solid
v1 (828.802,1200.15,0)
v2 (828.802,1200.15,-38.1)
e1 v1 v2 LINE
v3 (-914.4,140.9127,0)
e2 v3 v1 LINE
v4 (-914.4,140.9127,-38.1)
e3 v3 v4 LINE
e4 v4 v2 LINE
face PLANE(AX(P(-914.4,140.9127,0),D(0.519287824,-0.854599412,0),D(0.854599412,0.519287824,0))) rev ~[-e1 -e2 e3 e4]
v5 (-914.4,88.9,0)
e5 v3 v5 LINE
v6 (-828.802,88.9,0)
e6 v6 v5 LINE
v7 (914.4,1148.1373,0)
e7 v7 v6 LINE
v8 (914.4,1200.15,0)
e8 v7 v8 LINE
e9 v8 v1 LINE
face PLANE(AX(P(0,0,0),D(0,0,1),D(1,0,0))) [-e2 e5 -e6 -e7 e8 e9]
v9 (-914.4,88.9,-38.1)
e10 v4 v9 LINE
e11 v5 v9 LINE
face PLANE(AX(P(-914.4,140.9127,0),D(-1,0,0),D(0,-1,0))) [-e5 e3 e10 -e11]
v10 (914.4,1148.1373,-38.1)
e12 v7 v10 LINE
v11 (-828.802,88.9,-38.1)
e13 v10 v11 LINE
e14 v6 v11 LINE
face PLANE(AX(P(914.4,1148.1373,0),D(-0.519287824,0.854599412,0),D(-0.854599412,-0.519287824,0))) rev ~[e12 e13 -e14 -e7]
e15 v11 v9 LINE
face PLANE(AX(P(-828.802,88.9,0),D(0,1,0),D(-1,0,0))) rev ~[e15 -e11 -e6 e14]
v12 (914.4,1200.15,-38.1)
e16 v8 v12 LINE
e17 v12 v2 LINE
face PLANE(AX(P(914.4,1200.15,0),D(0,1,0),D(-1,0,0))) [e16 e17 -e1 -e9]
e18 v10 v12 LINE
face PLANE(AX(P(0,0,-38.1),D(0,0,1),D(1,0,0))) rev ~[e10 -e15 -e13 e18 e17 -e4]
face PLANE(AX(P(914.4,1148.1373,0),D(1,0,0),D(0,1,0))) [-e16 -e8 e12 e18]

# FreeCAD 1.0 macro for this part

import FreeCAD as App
import Part
import Sketcher
from FreeCAD import Vector
Q = App.Units.Quantity


def add_polygon(sketch, points):
    """Adds a closed chain of lines whose ends are joined by coincident constraints."""
    first, n = sketch.GeometryCount, len(points)
    for a, b in zip(points, points[1:] + points[:1]):
        sketch.addGeometry(Part.LineSegment(App.Vector(*a, 0), App.Vector(*b, 0)), False)
    for i in range(n):
        sketch.addConstraint(Sketcher.Constraint("Coincident", first + i, 2, first + (i + 1) % n, 1))

doc = App.newDocument("Part")
body = doc.addObject("PartDesign::Body", "Body")

# Sketch on XY plane
sketch1 = doc.addObject("Sketcher::SketchObject", "Sketch")
body.addObject(sketch1)
sketch1.AttachmentSupport = (doc.XY_Plane, [""])
sketch1.MapMode = "FlatFace"
add_polygon(sketch1, [(914.4, 1148.1373), (914.4, 1200.15), (828.802, 1200.15), (-914.4, 140.9127), (-914.4, 88.9), (-828.802, 88.9)])  # lines 0-5
sketch1.addConstraint([
    Sketcher.Constraint("Vertical", 0),
    Sketcher.Constraint("Horizontal", 1),
    Sketcher.Constraint("Vertical", 3),
    Sketcher.Constraint("Horizontal", 4),
    Sketcher.Constraint("Parallel", 2, 5),
    Sketcher.Constraint("Equal", 1, 4),
    Sketcher.Constraint("DistanceX", -1, 1, 0, 2, Q("36 in")),
    Sketcher.Constraint("DistanceX", 2, 2, -1, 1, Q("36 in")),
    Sketcher.Constraint("DistanceX", 1, 2, 1, 1, Q("3.37 in")),
    Sketcher.Constraint("DistanceY", -1, 1, 3, 2, Q("3.5 in")),
    Sketcher.Constraint("DistanceY", -1, 1, 0, 2, Q("47.25 in")),
    Sketcher.Constraint("DistanceY", 0, 1, 0, 2, Q("52.0127 mm")),
])
pad1 = doc.addObject("PartDesign::Pad", "Pad")
body.addObject(pad1)
pad1.Profile = sketch1
pad1.Length = Q("1.5 in")
pad1.Reversed = True

doc.recompute()
